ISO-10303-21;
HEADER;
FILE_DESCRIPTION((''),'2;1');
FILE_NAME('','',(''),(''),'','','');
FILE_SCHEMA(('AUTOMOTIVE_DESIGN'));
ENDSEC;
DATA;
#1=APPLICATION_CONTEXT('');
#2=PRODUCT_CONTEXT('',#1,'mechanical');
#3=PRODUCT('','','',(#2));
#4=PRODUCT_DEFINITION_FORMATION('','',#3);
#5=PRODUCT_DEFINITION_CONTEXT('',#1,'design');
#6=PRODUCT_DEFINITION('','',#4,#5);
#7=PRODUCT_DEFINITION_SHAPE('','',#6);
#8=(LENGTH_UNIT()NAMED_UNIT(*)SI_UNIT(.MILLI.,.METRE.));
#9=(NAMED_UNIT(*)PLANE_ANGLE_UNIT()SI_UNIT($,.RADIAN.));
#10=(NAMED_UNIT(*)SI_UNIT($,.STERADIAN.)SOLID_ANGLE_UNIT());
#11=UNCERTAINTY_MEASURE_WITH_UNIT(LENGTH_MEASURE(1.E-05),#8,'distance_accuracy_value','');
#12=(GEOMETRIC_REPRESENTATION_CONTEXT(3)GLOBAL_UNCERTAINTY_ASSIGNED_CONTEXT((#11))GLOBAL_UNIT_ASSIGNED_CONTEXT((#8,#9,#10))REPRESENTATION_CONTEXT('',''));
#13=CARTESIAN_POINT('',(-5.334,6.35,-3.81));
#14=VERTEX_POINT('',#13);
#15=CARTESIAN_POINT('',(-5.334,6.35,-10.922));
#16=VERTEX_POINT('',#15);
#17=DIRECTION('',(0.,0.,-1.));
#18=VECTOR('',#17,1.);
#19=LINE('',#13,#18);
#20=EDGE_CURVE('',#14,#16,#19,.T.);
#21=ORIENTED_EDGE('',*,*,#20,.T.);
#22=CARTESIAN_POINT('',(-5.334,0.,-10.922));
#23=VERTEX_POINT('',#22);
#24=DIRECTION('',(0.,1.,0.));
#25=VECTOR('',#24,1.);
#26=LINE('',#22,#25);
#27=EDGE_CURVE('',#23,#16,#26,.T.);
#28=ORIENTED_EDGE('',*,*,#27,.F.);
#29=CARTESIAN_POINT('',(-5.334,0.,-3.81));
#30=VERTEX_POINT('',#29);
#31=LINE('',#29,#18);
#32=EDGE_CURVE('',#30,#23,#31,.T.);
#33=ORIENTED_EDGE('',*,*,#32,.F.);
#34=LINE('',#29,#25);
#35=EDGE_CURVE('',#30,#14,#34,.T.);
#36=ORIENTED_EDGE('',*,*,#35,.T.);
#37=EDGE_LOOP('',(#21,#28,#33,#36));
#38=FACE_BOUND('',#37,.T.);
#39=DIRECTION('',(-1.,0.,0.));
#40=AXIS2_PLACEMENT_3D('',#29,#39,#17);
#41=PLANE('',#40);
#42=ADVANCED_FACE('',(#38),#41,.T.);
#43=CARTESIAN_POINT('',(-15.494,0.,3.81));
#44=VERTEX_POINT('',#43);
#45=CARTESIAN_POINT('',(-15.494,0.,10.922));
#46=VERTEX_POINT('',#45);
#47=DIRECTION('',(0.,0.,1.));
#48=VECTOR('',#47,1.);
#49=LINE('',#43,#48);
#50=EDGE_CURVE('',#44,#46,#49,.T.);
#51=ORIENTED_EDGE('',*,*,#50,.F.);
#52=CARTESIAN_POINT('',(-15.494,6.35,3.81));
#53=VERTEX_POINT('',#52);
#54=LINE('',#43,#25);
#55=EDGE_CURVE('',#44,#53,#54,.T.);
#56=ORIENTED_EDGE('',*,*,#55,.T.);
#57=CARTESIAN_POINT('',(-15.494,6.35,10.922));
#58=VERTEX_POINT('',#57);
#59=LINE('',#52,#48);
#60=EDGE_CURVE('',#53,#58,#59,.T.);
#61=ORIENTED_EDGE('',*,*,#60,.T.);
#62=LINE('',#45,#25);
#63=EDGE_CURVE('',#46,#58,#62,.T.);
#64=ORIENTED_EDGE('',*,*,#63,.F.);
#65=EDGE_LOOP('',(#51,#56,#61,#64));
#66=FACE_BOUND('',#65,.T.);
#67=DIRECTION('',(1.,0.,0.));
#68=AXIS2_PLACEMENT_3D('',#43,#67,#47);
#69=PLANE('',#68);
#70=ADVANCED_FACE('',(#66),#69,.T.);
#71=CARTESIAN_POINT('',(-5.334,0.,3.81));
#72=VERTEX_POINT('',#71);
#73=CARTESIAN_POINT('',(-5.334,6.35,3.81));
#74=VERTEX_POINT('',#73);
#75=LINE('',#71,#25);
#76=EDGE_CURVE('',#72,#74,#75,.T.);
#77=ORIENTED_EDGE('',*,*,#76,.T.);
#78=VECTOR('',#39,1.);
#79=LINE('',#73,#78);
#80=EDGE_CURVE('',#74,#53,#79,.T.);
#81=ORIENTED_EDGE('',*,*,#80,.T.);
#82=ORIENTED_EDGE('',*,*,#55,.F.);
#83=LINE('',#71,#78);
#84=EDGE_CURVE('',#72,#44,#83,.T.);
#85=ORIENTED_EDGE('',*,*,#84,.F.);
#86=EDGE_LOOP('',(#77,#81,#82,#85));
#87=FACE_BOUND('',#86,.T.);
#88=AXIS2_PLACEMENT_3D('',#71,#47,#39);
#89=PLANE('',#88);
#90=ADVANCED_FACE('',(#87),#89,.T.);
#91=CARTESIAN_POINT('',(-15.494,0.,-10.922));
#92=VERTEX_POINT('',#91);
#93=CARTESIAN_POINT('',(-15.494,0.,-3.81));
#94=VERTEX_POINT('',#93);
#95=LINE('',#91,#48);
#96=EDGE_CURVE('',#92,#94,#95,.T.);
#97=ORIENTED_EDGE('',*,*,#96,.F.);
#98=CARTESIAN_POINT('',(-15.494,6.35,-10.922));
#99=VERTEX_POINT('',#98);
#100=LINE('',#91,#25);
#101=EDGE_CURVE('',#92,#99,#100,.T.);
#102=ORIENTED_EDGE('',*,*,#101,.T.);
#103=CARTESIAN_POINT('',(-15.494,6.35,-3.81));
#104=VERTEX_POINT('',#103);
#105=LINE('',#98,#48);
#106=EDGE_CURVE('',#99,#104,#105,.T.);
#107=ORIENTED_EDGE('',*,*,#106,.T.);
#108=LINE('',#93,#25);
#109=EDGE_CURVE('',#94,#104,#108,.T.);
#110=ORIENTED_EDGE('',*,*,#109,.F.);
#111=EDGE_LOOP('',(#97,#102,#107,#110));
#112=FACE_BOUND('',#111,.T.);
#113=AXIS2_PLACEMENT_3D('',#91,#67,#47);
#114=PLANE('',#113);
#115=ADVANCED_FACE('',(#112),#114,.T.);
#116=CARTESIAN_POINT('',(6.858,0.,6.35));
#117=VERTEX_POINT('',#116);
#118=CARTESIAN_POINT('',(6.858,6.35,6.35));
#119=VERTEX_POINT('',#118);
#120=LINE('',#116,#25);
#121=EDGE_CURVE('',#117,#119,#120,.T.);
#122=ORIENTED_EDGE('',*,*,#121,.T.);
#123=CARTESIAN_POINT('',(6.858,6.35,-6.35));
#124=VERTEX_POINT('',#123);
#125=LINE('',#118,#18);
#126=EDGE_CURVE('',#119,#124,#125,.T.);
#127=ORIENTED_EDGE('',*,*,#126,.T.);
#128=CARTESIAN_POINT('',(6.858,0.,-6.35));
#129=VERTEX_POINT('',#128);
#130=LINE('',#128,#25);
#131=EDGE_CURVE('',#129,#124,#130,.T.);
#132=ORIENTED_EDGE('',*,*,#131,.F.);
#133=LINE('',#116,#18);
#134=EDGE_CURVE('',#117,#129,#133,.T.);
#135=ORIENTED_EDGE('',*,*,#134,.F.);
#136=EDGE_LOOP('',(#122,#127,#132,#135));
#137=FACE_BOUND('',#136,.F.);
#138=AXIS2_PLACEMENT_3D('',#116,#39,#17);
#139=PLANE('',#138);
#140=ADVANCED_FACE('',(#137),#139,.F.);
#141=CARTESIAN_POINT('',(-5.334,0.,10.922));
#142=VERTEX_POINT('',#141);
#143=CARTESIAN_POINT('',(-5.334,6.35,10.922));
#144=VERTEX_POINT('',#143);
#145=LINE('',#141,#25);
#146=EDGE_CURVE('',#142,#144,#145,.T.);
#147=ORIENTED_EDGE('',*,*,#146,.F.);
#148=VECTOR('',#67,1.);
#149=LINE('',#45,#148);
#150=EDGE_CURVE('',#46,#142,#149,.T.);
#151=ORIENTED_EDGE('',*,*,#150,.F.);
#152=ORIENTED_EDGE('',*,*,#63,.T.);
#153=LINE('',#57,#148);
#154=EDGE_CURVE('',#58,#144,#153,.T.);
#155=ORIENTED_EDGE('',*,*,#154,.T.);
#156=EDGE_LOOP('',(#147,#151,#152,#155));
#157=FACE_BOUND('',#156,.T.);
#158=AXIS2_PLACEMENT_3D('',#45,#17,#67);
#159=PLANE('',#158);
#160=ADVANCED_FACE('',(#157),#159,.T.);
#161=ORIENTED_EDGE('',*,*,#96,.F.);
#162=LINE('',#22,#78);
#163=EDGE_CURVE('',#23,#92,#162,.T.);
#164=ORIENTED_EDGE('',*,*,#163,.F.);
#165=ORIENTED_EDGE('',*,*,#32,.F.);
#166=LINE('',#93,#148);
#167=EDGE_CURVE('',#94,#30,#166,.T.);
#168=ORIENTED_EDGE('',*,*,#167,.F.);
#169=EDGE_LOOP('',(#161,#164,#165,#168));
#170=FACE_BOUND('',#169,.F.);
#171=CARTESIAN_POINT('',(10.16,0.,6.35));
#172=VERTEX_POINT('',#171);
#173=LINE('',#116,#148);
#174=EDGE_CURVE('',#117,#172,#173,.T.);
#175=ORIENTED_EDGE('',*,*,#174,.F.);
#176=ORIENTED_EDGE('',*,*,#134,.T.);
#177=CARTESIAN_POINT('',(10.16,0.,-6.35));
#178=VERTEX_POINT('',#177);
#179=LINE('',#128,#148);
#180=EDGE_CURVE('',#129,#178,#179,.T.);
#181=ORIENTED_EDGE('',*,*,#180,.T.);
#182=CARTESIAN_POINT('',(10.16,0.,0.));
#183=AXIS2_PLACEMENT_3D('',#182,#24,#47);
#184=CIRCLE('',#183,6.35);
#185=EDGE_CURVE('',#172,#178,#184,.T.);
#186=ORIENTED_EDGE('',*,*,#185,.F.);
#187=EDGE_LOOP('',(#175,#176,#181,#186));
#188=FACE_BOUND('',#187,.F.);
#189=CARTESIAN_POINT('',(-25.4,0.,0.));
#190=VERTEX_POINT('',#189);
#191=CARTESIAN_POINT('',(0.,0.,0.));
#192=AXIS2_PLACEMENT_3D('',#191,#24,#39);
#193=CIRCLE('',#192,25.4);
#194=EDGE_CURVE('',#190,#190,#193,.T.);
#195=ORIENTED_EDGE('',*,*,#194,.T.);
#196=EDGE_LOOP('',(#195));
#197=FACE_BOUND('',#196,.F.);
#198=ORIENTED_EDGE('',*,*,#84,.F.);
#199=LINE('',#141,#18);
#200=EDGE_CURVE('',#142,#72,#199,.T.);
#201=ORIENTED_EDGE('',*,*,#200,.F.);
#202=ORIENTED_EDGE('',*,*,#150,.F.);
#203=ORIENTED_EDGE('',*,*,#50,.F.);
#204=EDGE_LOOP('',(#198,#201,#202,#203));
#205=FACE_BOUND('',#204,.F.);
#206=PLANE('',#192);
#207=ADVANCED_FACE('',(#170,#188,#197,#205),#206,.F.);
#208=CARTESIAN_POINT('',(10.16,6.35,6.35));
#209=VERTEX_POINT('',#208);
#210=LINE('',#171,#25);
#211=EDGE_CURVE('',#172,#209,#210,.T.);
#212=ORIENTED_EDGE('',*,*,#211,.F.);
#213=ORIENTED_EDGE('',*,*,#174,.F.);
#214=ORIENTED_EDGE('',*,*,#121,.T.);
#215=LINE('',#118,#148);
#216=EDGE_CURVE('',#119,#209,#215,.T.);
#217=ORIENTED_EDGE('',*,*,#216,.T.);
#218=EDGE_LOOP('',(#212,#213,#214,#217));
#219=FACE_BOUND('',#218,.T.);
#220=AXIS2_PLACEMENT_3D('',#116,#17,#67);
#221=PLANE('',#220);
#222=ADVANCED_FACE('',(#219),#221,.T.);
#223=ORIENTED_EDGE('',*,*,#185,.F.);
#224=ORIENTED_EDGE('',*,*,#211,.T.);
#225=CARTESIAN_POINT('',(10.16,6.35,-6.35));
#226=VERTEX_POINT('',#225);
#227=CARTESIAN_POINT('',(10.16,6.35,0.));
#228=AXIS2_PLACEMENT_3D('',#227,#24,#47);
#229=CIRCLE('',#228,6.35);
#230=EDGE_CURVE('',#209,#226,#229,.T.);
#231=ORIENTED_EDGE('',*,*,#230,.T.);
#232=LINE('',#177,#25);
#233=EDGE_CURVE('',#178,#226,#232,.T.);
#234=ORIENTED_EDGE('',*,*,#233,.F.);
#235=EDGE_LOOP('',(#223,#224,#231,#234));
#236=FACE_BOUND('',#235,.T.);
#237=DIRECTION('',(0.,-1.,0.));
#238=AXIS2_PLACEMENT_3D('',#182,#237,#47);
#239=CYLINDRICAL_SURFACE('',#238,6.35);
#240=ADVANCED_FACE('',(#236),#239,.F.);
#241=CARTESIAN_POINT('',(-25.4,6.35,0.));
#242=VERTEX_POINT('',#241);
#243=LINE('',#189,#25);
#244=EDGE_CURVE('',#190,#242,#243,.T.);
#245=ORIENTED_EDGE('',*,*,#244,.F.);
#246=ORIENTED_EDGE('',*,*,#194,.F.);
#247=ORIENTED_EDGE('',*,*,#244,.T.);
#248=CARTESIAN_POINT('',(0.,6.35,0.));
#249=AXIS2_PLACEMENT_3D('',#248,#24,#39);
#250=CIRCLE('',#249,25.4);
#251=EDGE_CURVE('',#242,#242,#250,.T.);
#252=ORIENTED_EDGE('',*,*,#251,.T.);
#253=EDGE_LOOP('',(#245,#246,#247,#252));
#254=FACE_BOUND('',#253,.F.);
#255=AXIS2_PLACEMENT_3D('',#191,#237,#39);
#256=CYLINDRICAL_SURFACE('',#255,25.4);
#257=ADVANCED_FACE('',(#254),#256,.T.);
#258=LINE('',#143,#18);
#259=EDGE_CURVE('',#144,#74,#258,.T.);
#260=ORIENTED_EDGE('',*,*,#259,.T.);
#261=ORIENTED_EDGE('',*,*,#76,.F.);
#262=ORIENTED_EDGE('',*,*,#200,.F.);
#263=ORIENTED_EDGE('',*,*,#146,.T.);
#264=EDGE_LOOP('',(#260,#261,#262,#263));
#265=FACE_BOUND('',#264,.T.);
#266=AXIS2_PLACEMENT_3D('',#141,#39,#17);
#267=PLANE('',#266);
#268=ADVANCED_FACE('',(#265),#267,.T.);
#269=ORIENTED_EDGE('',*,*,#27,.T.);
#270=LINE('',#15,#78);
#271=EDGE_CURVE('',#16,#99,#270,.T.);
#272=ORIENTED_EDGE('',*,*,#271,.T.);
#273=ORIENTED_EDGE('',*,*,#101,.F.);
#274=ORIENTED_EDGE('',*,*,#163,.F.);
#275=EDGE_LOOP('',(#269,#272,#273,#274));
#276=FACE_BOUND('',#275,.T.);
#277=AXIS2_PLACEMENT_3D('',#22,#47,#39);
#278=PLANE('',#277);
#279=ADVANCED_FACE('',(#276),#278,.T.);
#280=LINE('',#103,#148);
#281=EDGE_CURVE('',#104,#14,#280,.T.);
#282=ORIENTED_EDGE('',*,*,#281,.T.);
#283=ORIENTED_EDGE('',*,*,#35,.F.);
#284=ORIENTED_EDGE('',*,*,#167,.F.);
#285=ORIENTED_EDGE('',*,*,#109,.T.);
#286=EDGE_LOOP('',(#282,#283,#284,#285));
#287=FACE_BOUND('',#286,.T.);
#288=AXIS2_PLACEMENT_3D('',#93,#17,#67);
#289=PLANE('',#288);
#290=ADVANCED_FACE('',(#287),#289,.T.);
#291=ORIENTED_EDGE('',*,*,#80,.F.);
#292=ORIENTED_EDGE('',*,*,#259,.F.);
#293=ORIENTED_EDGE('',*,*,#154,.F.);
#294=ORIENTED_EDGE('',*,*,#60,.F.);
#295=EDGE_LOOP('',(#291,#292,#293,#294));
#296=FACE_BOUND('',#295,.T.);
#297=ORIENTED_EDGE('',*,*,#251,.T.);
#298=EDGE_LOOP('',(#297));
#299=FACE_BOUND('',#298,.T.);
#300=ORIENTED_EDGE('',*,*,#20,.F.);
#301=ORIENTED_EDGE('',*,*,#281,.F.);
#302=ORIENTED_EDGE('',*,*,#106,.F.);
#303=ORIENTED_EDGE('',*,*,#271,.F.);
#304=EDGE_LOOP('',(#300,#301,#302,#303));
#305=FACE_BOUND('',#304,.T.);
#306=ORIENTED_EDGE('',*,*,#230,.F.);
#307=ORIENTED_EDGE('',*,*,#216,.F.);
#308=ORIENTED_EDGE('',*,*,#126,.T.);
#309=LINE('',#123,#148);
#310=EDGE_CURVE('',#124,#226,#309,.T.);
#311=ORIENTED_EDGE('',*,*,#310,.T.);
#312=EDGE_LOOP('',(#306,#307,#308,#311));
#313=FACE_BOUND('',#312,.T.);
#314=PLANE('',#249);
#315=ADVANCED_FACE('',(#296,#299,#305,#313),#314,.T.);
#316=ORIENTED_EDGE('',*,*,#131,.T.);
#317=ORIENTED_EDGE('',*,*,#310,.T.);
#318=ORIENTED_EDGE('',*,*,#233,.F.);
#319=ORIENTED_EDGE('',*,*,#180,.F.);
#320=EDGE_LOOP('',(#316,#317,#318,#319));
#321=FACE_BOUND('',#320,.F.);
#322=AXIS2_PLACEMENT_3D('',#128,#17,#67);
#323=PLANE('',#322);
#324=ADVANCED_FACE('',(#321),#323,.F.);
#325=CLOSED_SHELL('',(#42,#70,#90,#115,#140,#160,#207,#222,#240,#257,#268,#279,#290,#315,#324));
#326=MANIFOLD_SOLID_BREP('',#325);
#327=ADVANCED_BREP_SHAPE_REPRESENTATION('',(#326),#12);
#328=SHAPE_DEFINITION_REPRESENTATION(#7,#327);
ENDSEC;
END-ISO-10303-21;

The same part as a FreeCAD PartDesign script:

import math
import FreeCAD as App
import Part
import Sketcher
from FreeCAD import Vector
Q = App.Units.Quantity


def add_polygon(sketch, points):
    """Adds a closed chain of lines whose ends are joined by coincident constraints."""
    first, n = sketch.GeometryCount, len(points)
    for a, b in zip(points, points[1:] + points[:1]):
        sketch.addGeometry(Part.LineSegment(App.Vector(*a, 0), App.Vector(*b, 0)), False)
    for i in range(n):
        sketch.addConstraint(Sketcher.Constraint("Coincident", first + i, 2, first + (i + 1) % n, 1))

doc = App.newDocument("Part")
body = doc.addObject("PartDesign::Body", "Body")

# Sketch on XZ plane
sketch1 = doc.addObject("Sketcher::SketchObject", "Sketch")
body.addObject(sketch1)
sketch1.AttachmentSupport = (doc.XZ_Plane, [""])
sketch1.MapMode = "FlatFace"
sketch1.addGeometry(Part.Circle(Vector(0, 0, 0), Vector(0, 0, 1), 25.4), False)  # 0
sketch1.addGeometry(Part.LineSegment(Vector(10.16, 6.35, 0), Vector(6.858, 6.35, 0)), False)  # 1
sketch1.addGeometry(Part.LineSegment(Vector(6.858, 6.35, 0), Vector(6.858, -6.35, 0)), False)  # 2
sketch1.addGeometry(Part.LineSegment(Vector(6.858, -6.35, 0), Vector(10.16, -6.35, 0)), False)  # 3
sketch1.addGeometry(Part.ArcOfCircle(Part.Circle(Vector(10.16, 0, 0), Vector(0, 0, 1), 6.35), math.radians(-90), math.radians(90)), False)  # 4
add_polygon(sketch1, [(-5.334, -3.81), (-15.494, -3.81), (-15.494, -10.922), (-5.334, -10.922)])  # lines 5-8
add_polygon(sketch1, [(-5.334, 10.922), (-15.494, 10.922), (-15.494, 3.81), (-5.334, 3.81)])  # lines 9-12
sketch1.addConstraint(Sketcher.Constraint("Coincident", 1, 2, 2, 1))
sketch1.addConstraint(Sketcher.Constraint("Coincident", 2, 2, 3, 1))
sketch1.addConstraint(Sketcher.Constraint("Tangent", 3, 2, 4, 1))
sketch1.addConstraint(Sketcher.Constraint("Tangent", 4, 2, 1, 1))
sketch1.addConstraint(Sketcher.Constraint("Horizontal", 1))
sketch1.addConstraint(Sketcher.Constraint("Vertical", 2))
sketch1.addConstraint(Sketcher.Constraint("Horizontal", 3))
sketch1.addConstraint(Sketcher.Constraint("Horizontal", 5))
sketch1.addConstraint(Sketcher.Constraint("Vertical", 6))
sketch1.addConstraint(Sketcher.Constraint("Horizontal", 7))
sketch1.addConstraint(Sketcher.Constraint("Vertical", 8))
sketch1.addConstraint(Sketcher.Constraint("Horizontal", 9))
sketch1.addConstraint(Sketcher.Constraint("Vertical", 10))
sketch1.addConstraint(Sketcher.Constraint("Horizontal", 11))
sketch1.addConstraint(Sketcher.Constraint("Vertical", 12))
sketch1.addConstraint(Sketcher.Constraint("Coincident", 0, 3, -1, 1))
sketch1.addConstraint(Sketcher.Constraint("Symmetric", 6, 2, 9, 2, -1))
sketch1.addConstraint(Sketcher.Constraint("Symmetric", 8, 2, 11, 2, -1))
sketch1.addConstraint(Sketcher.Constraint("PointOnObject", 4, 3, -1))
sketch1.addConstraint(Sketcher.Constraint("Diameter", 0, Q("2 in")))
sketch1.addConstraint(Sketcher.Constraint("Radius", 4, Q("0.25 in")))
sketch1.addConstraint(Sketcher.Constraint("DistanceX", 5, 2, 5, 1, Q("0.4 in")))
sketch1.addConstraint(Sketcher.Constraint("DistanceX", 1, 2, 1, 1, Q("0.13 in")))
sketch1.addConstraint(Sketcher.Constraint("DistanceY", 6, 2, 6, 1, Q("0.28 in")))
sketch1.addConstraint(Sketcher.Constraint("DistanceX", -1, 1, 4, 3, Q("0.4 in")))
sketch1.addConstraint(Sketcher.Constraint("DistanceY", 5, 2, 1, 2, Q("0.4 in")))
sketch1.addConstraint(Sketcher.Constraint("DistanceX", 7, 2, -1, 1, Q("0.21 in")))
pad1 = doc.addObject("PartDesign::Pad", "Pad")
body.addObject(pad1)
pad1.Profile = sketch1
pad1.Length = Q("0.25 in")
pad1.Reversed = True

doc.recompute()
